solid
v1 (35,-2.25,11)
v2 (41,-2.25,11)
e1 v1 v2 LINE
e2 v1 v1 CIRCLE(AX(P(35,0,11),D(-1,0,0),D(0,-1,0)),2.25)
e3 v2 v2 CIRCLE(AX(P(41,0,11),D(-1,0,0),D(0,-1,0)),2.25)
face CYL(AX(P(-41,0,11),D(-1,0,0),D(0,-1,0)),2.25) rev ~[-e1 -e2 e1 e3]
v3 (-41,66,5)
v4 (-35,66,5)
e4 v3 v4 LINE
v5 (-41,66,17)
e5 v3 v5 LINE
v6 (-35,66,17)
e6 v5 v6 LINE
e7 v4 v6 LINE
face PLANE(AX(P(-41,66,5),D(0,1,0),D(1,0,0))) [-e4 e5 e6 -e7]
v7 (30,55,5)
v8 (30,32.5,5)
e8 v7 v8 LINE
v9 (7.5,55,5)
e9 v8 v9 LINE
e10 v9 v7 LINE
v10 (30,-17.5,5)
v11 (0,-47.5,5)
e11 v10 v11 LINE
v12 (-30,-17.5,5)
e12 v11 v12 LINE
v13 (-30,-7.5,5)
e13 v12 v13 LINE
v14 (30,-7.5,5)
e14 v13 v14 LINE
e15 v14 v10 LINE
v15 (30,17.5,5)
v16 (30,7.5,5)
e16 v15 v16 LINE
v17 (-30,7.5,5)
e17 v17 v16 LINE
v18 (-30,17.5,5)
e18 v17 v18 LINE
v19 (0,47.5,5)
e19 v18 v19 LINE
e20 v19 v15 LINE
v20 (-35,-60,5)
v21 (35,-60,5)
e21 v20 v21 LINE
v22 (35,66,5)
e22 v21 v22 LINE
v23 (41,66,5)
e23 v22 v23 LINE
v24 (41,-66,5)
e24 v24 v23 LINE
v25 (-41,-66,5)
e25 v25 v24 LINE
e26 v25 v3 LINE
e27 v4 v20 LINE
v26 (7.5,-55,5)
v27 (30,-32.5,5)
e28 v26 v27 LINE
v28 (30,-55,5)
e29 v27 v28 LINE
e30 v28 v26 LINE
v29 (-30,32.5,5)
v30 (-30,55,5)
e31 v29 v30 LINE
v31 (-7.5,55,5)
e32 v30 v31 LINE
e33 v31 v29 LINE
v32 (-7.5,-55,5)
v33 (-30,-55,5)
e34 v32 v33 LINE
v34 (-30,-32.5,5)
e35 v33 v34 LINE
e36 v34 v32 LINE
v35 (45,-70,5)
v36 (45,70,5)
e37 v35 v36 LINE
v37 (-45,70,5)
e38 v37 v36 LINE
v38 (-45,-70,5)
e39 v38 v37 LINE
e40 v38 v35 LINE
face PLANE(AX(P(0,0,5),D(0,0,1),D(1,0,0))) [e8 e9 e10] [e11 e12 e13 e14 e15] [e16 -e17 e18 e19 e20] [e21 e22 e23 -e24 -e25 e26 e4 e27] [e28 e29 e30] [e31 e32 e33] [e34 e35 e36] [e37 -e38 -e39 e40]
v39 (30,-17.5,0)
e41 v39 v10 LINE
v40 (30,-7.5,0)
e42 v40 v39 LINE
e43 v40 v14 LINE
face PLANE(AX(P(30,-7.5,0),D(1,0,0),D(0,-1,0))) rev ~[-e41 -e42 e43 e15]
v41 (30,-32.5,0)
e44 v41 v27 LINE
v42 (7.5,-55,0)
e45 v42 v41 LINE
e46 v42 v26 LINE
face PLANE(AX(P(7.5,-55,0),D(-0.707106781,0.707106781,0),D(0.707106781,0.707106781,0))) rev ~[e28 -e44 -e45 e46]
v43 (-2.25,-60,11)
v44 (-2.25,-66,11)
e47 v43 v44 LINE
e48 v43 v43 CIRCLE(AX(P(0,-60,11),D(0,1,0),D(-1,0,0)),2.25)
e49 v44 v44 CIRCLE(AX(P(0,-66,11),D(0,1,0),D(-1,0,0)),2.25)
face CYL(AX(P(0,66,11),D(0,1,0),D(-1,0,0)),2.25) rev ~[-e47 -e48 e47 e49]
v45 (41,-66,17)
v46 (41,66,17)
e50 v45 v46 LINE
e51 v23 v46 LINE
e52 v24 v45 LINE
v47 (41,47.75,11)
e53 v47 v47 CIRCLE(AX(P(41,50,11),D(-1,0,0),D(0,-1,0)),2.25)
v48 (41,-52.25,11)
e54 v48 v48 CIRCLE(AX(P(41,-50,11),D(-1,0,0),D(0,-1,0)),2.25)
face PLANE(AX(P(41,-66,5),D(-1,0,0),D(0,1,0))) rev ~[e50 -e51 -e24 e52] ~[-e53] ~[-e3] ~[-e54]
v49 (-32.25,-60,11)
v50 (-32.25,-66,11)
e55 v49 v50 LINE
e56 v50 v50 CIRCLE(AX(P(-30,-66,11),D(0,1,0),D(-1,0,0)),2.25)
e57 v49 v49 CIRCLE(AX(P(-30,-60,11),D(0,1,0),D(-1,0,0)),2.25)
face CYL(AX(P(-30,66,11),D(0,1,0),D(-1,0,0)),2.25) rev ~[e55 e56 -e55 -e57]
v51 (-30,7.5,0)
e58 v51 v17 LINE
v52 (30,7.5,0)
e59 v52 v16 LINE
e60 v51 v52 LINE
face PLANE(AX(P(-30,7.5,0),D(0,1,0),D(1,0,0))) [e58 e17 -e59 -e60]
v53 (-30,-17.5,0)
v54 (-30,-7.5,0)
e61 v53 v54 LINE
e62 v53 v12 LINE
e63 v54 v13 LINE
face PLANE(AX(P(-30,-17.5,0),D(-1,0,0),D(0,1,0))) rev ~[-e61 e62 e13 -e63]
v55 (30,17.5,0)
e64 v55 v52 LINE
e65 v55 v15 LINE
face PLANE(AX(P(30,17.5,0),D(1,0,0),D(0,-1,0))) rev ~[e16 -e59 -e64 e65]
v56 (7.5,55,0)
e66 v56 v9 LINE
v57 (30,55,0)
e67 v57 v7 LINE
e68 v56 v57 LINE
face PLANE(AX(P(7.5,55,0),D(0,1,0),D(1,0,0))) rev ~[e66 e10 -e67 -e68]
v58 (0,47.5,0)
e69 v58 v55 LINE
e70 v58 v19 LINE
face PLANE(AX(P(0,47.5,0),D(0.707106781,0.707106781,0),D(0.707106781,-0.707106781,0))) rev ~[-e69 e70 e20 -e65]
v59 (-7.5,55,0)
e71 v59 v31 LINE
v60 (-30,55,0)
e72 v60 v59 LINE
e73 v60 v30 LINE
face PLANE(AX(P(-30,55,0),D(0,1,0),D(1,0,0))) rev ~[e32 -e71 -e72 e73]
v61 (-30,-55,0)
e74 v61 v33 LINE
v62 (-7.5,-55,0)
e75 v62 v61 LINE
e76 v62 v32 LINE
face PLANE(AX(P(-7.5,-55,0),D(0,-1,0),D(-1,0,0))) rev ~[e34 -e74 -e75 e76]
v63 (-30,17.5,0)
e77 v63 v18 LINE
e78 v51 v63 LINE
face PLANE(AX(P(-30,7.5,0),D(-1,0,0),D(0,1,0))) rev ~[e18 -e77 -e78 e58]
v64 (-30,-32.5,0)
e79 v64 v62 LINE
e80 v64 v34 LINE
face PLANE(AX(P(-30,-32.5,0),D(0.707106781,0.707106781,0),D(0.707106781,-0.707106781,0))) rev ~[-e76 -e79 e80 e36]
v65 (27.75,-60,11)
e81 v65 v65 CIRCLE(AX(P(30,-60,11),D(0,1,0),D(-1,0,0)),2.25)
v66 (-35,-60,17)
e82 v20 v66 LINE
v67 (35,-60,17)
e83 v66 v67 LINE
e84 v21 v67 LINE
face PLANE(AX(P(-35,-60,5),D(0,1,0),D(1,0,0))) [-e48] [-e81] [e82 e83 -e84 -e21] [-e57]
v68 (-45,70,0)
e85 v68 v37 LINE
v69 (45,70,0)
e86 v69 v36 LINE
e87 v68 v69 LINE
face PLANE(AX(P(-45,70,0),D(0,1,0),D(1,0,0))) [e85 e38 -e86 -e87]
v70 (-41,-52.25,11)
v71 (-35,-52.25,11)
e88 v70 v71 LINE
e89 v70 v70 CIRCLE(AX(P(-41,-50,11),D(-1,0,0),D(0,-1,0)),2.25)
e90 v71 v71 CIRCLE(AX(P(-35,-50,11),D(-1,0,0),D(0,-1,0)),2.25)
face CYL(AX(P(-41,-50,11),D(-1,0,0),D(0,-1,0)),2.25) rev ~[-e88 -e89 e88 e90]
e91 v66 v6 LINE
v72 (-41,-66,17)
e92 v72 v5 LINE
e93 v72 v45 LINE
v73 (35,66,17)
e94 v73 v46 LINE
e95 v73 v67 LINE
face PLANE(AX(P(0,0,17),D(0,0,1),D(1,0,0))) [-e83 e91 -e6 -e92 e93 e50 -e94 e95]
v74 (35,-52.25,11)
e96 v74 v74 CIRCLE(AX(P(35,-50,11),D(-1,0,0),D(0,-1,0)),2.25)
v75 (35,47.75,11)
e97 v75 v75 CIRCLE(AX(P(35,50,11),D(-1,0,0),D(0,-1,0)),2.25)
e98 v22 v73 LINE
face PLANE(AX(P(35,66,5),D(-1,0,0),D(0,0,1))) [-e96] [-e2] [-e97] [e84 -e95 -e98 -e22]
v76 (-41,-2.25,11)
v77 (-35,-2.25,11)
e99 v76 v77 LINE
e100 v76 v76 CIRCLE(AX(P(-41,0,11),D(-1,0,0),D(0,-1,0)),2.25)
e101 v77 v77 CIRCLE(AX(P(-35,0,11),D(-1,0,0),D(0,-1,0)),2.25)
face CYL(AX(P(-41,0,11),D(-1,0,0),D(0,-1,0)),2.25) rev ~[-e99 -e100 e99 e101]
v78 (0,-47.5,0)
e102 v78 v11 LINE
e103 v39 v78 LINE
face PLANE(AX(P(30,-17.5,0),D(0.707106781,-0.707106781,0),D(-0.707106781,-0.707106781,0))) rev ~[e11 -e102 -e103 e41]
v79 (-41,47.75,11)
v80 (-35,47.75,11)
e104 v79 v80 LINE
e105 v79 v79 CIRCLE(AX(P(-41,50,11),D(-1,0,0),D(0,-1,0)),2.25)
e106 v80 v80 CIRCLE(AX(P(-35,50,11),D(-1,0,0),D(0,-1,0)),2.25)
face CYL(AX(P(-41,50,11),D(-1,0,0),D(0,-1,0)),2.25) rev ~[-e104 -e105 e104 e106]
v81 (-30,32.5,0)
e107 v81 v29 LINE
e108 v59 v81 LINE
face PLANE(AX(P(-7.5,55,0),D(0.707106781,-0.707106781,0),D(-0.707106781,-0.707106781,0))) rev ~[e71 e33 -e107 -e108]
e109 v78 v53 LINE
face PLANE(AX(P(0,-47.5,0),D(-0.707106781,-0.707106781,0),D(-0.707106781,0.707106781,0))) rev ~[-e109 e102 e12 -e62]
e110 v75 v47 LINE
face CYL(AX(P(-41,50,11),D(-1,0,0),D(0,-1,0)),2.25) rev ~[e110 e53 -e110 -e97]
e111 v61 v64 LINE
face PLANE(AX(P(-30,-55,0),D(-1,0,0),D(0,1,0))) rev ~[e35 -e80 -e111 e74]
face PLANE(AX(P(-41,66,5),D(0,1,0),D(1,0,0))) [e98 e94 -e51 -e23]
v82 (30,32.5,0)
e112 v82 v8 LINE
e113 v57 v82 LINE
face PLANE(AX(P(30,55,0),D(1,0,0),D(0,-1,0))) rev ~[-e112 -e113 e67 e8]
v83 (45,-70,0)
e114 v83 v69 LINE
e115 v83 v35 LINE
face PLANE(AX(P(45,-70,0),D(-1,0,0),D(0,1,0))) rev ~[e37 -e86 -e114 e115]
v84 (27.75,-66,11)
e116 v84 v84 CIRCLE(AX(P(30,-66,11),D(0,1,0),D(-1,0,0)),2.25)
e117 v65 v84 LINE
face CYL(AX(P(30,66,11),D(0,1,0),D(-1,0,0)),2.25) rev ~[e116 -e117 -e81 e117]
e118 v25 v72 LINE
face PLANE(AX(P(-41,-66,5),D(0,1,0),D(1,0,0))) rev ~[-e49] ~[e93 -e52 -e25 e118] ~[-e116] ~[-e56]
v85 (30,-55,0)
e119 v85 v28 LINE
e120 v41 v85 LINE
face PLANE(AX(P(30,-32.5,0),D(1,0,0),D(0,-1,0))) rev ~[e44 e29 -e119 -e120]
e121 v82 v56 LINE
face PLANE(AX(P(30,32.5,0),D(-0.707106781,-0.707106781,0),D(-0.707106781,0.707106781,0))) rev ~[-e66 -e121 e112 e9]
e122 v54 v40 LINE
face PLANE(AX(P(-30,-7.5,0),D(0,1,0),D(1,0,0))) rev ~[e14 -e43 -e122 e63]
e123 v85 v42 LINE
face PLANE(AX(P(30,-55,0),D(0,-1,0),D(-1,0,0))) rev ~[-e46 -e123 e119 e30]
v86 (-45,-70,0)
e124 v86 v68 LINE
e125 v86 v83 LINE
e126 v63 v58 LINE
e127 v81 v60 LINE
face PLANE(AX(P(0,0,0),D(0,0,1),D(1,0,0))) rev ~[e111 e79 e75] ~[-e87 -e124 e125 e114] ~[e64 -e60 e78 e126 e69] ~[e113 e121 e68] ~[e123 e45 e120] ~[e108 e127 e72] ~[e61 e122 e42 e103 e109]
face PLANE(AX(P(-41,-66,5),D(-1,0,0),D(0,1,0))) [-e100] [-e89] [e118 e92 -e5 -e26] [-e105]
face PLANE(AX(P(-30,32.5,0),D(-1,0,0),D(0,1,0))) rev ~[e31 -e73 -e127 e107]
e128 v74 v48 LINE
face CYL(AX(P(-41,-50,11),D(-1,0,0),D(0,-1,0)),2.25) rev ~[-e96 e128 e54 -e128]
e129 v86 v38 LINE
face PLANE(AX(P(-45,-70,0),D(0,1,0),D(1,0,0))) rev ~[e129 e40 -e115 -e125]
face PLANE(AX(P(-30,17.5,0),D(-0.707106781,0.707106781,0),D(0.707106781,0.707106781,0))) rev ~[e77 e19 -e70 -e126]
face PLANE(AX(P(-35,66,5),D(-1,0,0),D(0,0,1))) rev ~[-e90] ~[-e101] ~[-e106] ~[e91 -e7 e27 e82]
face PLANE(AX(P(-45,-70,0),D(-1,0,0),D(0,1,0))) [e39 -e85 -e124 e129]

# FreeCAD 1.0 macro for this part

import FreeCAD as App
import Part
import Sketcher

V = App.Vector
Q = App.Units.Quantity

doc = App.newDocument("Part")
body = doc.addObject("PartDesign::Body", "Body")

# Sketch on XY plane
sketch1 = doc.addObject("Sketcher::SketchObject", "Sketch")
body.addObject(sketch1)
sketch1.AttachmentSupport = (doc.XY_Plane, [""])
sketch1.MapMode = "FlatFace"
sketch1.addGeometry(Part.LineSegment(V(-45, 70, 0), V(-45, -70, 0)), False)
sketch1.addGeometry(Part.LineSegment(V(-45, -70, 0), V(45, -70, 0)), False)
sketch1.addGeometry(Part.LineSegment(V(45, -70, 0), V(45, 70, 0)), False)
sketch1.addGeometry(Part.LineSegment(V(45, 70, 0), V(-45, 70, 0)), False)
sketch1.addGeometry(Part.LineSegment(V(-30, -55, 0), V(-30, -32.5, 0)), False)
sketch1.addGeometry(Part.LineSegment(V(-30, -32.5, 0), V(-7.5, -55, 0)), False)
sketch1.addGeometry(Part.LineSegment(V(-7.5, -55, 0), V(-30, -55, 0)), False)
sketch1.addGeometry(Part.LineSegment(V(-30, -17.5, 0), V(-30, -7.5, 0)), False)
sketch1.addGeometry(Part.LineSegment(V(-30, -7.5, 0), V(30, -7.5, 0)), False)
sketch1.addGeometry(Part.LineSegment(V(30, -7.5, 0), V(30, -17.5, 0)), False)
sketch1.addGeometry(Part.LineSegment(V(30, -17.5, 0), V(0, -47.5, 0)), False)
sketch1.addGeometry(Part.LineSegment(V(0, -47.5, 0), V(-30, -17.5, 0)), False)
sketch1.addGeometry(Part.LineSegment(V(-30, 7.5, 0), V(-30, 17.5, 0)), False)
sketch1.addGeometry(Part.LineSegment(V(-30, 17.5, 0), V(0, 47.5, 0)), False)
sketch1.addGeometry(Part.LineSegment(V(0, 47.5, 0), V(30, 17.5, 0)), False)
sketch1.addGeometry(Part.LineSegment(V(30, 17.5, 0), V(30, 7.5, 0)), False)
sketch1.addGeometry(Part.LineSegment(V(30, 7.5, 0), V(-30, 7.5, 0)), False)
sketch1.addGeometry(Part.LineSegment(V(30, -32.5, 0), V(30, -55, 0)), False)
sketch1.addGeometry(Part.LineSegment(V(30, -55, 0), V(7.5, -55, 0)), False)
sketch1.addGeometry(Part.LineSegment(V(7.5, -55, 0), V(30, -32.5, 0)), False)
sketch1.addGeometry(Part.LineSegment(V(-30, 32.5, 0), V(-30, 55, 0)), False)
sketch1.addGeometry(Part.LineSegment(V(-30, 55, 0), V(-7.5, 55, 0)), False)
sketch1.addGeometry(Part.LineSegment(V(-7.5, 55, 0), V(-30, 32.5, 0)), False)
sketch1.addGeometry(Part.LineSegment(V(7.5, 55, 0), V(30, 55, 0)), False)
sketch1.addGeometry(Part.LineSegment(V(30, 55, 0), V(30, 32.5, 0)), False)
sketch1.addGeometry(Part.LineSegment(V(30, 32.5, 0), V(7.5, 55, 0)), False)
sketch1.addConstraint(Sketcher.Constraint("Coincident", 0, 2, 1, 1))
sketch1.addConstraint(Sketcher.Constraint("Coincident", 1, 2, 2, 1))
sketch1.addConstraint(Sketcher.Constraint("Coincident", 2, 2, 3, 1))
sketch1.addConstraint(Sketcher.Constraint("Coincident", 3, 2, 0, 1))
sketch1.addConstraint(Sketcher.Constraint("Coincident", 4, 2, 5, 1))
sketch1.addConstraint(Sketcher.Constraint("Coincident", 5, 2, 6, 1))
sketch1.addConstraint(Sketcher.Constraint("Coincident", 6, 2, 4, 1))
sketch1.addConstraint(Sketcher.Constraint("Coincident", 7, 2, 8, 1))
sketch1.addConstraint(Sketcher.Constraint("Coincident", 8, 2, 9, 1))
sketch1.addConstraint(Sketcher.Constraint("Coincident", 9, 2, 10, 1))
sketch1.addConstraint(Sketcher.Constraint("Coincident", 10, 2, 11, 1))
sketch1.addConstraint(Sketcher.Constraint("Coincident", 11, 2, 7, 1))
sketch1.addConstraint(Sketcher.Constraint("Coincident", 12, 2, 13, 1))
sketch1.addConstraint(Sketcher.Constraint("Coincident", 13, 2, 14, 1))
sketch1.addConstraint(Sketcher.Constraint("Coincident", 14, 2, 15, 1))
sketch1.addConstraint(Sketcher.Constraint("Coincident", 15, 2, 16, 1))
sketch1.addConstraint(Sketcher.Constraint("Coincident", 16, 2, 12, 1))
sketch1.addConstraint(Sketcher.Constraint("Coincident", 17, 2, 18, 1))
sketch1.addConstraint(Sketcher.Constraint("Coincident", 18, 2, 19, 1))
sketch1.addConstraint(Sketcher.Constraint("Coincident", 19, 2, 17, 1))
sketch1.addConstraint(Sketcher.Constraint("Coincident", 20, 2, 21, 1))
sketch1.addConstraint(Sketcher.Constraint("Coincident", 21, 2, 22, 1))
sketch1.addConstraint(Sketcher.Constraint("Coincident", 22, 2, 20, 1))
sketch1.addConstraint(Sketcher.Constraint("Coincident", 23, 2, 24, 1))
sketch1.addConstraint(Sketcher.Constraint("Coincident", 24, 2, 25, 1))
sketch1.addConstraint(Sketcher.Constraint("Coincident", 25, 2, 23, 1))
sketch1.addConstraint(Sketcher.Constraint("Vertical", 0))
sketch1.addConstraint(Sketcher.Constraint("Horizontal", 1))
sketch1.addConstraint(Sketcher.Constraint("Vertical", 2))
sketch1.addConstraint(Sketcher.Constraint("Horizontal", 3))
sketch1.addConstraint(Sketcher.Constraint("Vertical", 4))
sketch1.addConstraint(Sketcher.Constraint("Horizontal", 6))
sketch1.addConstraint(Sketcher.Constraint("Vertical", 7))
sketch1.addConstraint(Sketcher.Constraint("Horizontal", 8))
sketch1.addConstraint(Sketcher.Constraint("Vertical", 9))
sketch1.addConstraint(Sketcher.Constraint("Vertical", 12))
sketch1.addConstraint(Sketcher.Constraint("Vertical", 15))
sketch1.addConstraint(Sketcher.Constraint("Horizontal", 16))
sketch1.addConstraint(Sketcher.Constraint("Vertical", 17))
sketch1.addConstraint(Sketcher.Constraint("Horizontal", 18))
sketch1.addConstraint(Sketcher.Constraint("Vertical", 20))
sketch1.addConstraint(Sketcher.Constraint("Horizontal", 21))
sketch1.addConstraint(Sketcher.Constraint("Horizontal", 23))
sketch1.addConstraint(Sketcher.Constraint("Vertical", 24))
sketch1.addConstraint(Sketcher.Constraint("Symmetric", 0, 2, 2, 2, -1, 1))
sketch1.addConstraint(Sketcher.Constraint("Symmetric", 9, 2, 12, 2, -1, 1))
sketch1.addConstraint(Sketcher.Constraint("Symmetric", 10, 2, 13, 2, -1, 1))
sketch1.addConstraint(Sketcher.Constraint("Symmetric", 11, 2, 14, 2, -1, 1))
sketch1.addConstraint(Sketcher.Constraint("Symmetric", 17, 2, 20, 2, -1, 1))
sketch1.addConstraint(Sketcher.Constraint("Symmetric", 6, 2, 23, 2, -1, 1))
sketch1.addConstraint(Sketcher.Constraint("Symmetric", 9, 2, 11, 2, -2))
sketch1.addConstraint(Sketcher.Constraint("Symmetric", 6, 2, 17, 2, -2))
sketch1.addConstraint(Sketcher.Constraint("PointOnObject", 10, 2, -2))
sketch1.addConstraint(Sketcher.Constraint("Perpendicular", 5, 10))
sketch1.addConstraint(Sketcher.Constraint("Perpendicular", 10, 11))
sketch1.addConstraint(Sketcher.Constraint("Perpendicular", 14, 19))
sketch1.addConstraint(Sketcher.Constraint("Parallel", 19, 22))
sketch1.addConstraint(Sketcher.Constraint("Perpendicular", 22, 25))
sketch1.addConstraint(Sketcher.Constraint("Horizontal", 4, 2, 19, 2))
sketch1.addConstraint(Sketcher.Constraint("Horizontal", 22, 2, 24, 2))
sketch1.addConstraint(Sketcher.Constraint("Vertical", 6, 2, 7, 2))
sketch1.addConstraint(Sketcher.Constraint("Vertical", 5, 2, 21, 2))
sketch1.addConstraint(Sketcher.Constraint("Equal", 9, 12))
sketch1.addConstraint(Sketcher.Constraint("DistanceX", 1, 1, 1, 2, Q("90 mm")))
sketch1.addConstraint(Sketcher.Constraint("DistanceX", 8, 1, 8, 2, Q("60 mm")))
sketch1.addConstraint(Sketcher.Constraint("DistanceY", 0, 2, 0, 1, Q("140 mm")))
sketch1.addConstraint(Sketcher.Constraint("DistanceY", 7, 1, 7, 2, Q("10 mm")))
sketch1.addConstraint(Sketcher.Constraint("DistanceX", 6, 2, 6, 1, Q("22.5 mm")))
sketch1.addConstraint(Sketcher.Constraint("DistanceY", 5, 2, -1, 1, Q("55 mm")))
sketch1.addConstraint(Sketcher.Constraint("DistanceY", 4, 2, 7, 2, Q("25 mm")))
pad1 = doc.addObject("PartDesign::Pad", "Pad")
body.addObject(pad1)
pad1.Profile = sketch1
pad1.Length = 5

# Sketch on XY plane
sketch2 = doc.addObject("Sketcher::SketchObject", "Sketch001")
body.addObject(sketch2)
sketch2.AttachmentSupport = (doc.XY_Plane, [""])
sketch2.MapMode = "FlatFace"
sketch2.AttachmentOffset = App.Placement(V(0, 0, 5), App.Rotation())
sketch2.addGeometry(Part.LineSegment(V(-41, 66, 0), V(-41, -66, 0)), False)
sketch2.addGeometry(Part.LineSegment(V(-41, -66, 0), V(41, -66, 0)), False)
sketch2.addGeometry(Part.LineSegment(V(41, -66, 0), V(41, 66, 0)), False)
sketch2.addGeometry(Part.LineSegment(V(41, 66, 0), V(-41, 66, 0)), False)
sketch2.addGeometry(Part.LineSegment(V(35, -60, 0), V(-35, -60, 0)), False)
sketch2.addGeometry(Part.LineSegment(V(-35, -60, 0), V(-35, 60, 0)), False)
sketch2.addGeometry(Part.LineSegment(V(-35, 60, 0), V(35, 60, 0)), False)
sketch2.addGeometry(Part.LineSegment(V(35, 60, 0), V(35, -60, 0)), False)
sketch2.addConstraint(Sketcher.Constraint("Coincident", 0, 2, 1, 1))
sketch2.addConstraint(Sketcher.Constraint("Coincident", 1, 2, 2, 1))
sketch2.addConstraint(Sketcher.Constraint("Coincident", 2, 2, 3, 1))
sketch2.addConstraint(Sketcher.Constraint("Coincident", 3, 2, 0, 1))
sketch2.addConstraint(Sketcher.Constraint("Coincident", 4, 2, 5, 1))
sketch2.addConstraint(Sketcher.Constraint("Coincident", 5, 2, 6, 1))
sketch2.addConstraint(Sketcher.Constraint("Coincident", 6, 2, 7, 1))
sketch2.addConstraint(Sketcher.Constraint("Coincident", 7, 2, 4, 1))
sketch2.addConstraint(Sketcher.Constraint("Vertical", 0))
sketch2.addConstraint(Sketcher.Constraint("Horizontal", 1))
sketch2.addConstraint(Sketcher.Constraint("Vertical", 2))
sketch2.addConstraint(Sketcher.Constraint("Horizontal", 3))
sketch2.addConstraint(Sketcher.Constraint("Horizontal", 4))
sketch2.addConstraint(Sketcher.Constraint("Vertical", 5))
sketch2.addConstraint(Sketcher.Constraint("Horizontal", 6))
sketch2.addConstraint(Sketcher.Constraint("Vertical", 7))
sketch2.addConstraint(Sketcher.Constraint("Symmetric", 0, 2, 2, 2, -1, 1))
sketch2.addConstraint(Sketcher.Constraint("Symmetric", 4, 2, 6, 2, -1, 1))
sketch2.addConstraint(Sketcher.Constraint("DistanceX", 1, 1, 1, 2, Q("82 mm")))
sketch2.addConstraint(Sketcher.Constraint("DistanceX", 4, 2, 4, 1, Q("70 mm")))
sketch2.addConstraint(Sketcher.Constraint("DistanceY", 0, 2, 0, 1, Q("132 mm")))
sketch2.addConstraint(Sketcher.Constraint("DistanceY", 5, 1, 5, 2, Q("120 mm")))
pad2 = doc.addObject("PartDesign::Pad", "Pad001")
body.addObject(pad2)
pad2.Profile = sketch2
pad2.Length = 12

# Sketch on YZ plane
sketch3 = doc.addObject("Sketcher::SketchObject", "Sketch002")
body.addObject(sketch3)
sketch3.AttachmentSupport = (doc.YZ_Plane, [""])
sketch3.MapMode = "FlatFace"
sketch3.AttachmentOffset = App.Placement(V(0, 0, -41), App.Rotation())
sketch3.addGeometry(Part.Circle(V(50, 11, 0), V(0, 0, 1), 2.25), False)
sketch3.addGeometry(Part.Circle(V(0, 11, 0), V(0, 0, 1), 2.25), False)
sketch3.addGeometry(Part.Circle(V(-50, 11, 0), V(0, 0, 1), 2.25), False)
sketch3.addConstraint(Sketcher.Constraint("Equal", 0, 1))
sketch3.addConstraint(Sketcher.Constraint("Equal", 1, 2))
sketch3.addConstraint(Sketcher.Constraint("Symmetric", 0, 3, 2, 3, -2))
sketch3.addConstraint(Sketcher.Constraint("PointOnObject", 1, 3, -2))
sketch3.addConstraint(Sketcher.Constraint("Horizontal", 0, 3, 1, 3))
sketch3.addConstraint(Sketcher.Constraint("Diameter", 0, Q("4.5 mm")))
sketch3.addConstraint(Sketcher.Constraint("DistanceX", -1, 1, 0, 3, Q("50 mm")))
sketch3.addConstraint(Sketcher.Constraint("DistanceY", -1, 1, 0, 3, Q("11 mm")))
pocket1 = doc.addObject("PartDesign::Pocket", "Pocket")
body.addObject(pocket1)
pocket1.Profile = sketch3
pocket1.Type = "ThroughAll"
pocket1.Reversed = True

# Sketch on XZ plane
sketch4 = doc.addObject("Sketcher::SketchObject", "Sketch003")
body.addObject(sketch4)
sketch4.AttachmentSupport = (doc.XZ_Plane, [""])
sketch4.MapMode = "FlatFace"
sketch4.AttachmentOffset = App.Placement(V(0, 0, -66), App.Rotation())
sketch4.addGeometry(Part.Circle(V(30, 11, 0), V(0, 0, 1), 2.25), False)
sketch4.addGeometry(Part.Circle(V(0, 11, 0), V(0, 0, 1), 2.25), False)
sketch4.addGeometry(Part.Circle(V(-30, 11, 0), V(0, 0, 1), 2.25), False)
sketch4.addConstraint(Sketcher.Constraint("Equal", 0, 1))
sketch4.addConstraint(Sketcher.Constraint("Equal", 1, 2))
sketch4.addConstraint(Sketcher.Constraint("Symmetric", 0, 3, 2, 3, -2))
sketch4.addConstraint(Sketcher.Constraint("PointOnObject", 1, 3, -2))
sketch4.addConstraint(Sketcher.Constraint("Horizontal", 0, 3, 1, 3))
sketch4.addConstraint(Sketcher.Constraint("Diameter", 0, Q("4.5 mm")))
sketch4.addConstraint(Sketcher.Constraint("DistanceX", -1, 1, 0, 3, Q("30 mm")))
sketch4.addConstraint(Sketcher.Constraint("DistanceY", -1, 1, 0, 3, Q("11 mm")))
pocket2 = doc.addObject("PartDesign::Pocket", "Pocket001")
body.addObject(pocket2)
pocket2.Profile = sketch4
pocket2.Type = "ThroughAll"
pocket2.Reversed = True

# Sketch on XZ plane
sketch5 = doc.addObject("Sketcher::SketchObject", "Sketch004")
body.addObject(sketch5)
sketch5.AttachmentSupport = (doc.XZ_Plane, [""])
sketch5.MapMode = "FlatFace"
sketch5.AttachmentOffset = App.Placement(V(0, 0, -66), App.Rotation())
sketch5.addGeometry(Part.LineSegment(V(35, 17, 0), V(35, 5, 0)), False)
sketch5.addGeometry(Part.LineSegment(V(35, 5, 0), V(-35, 5, 0)), False)
sketch5.addGeometry(Part.LineSegment(V(-35, 5, 0), V(-35, 17, 0)), False)
sketch5.addGeometry(Part.LineSegment(V(-35, 17, 0), V(35, 17, 0)), False)
sketch5.addGeometry(Part.Circle(V(30, 11, 0), V(0, 0, 1), 2.25), False)
sketch5.addGeometry(Part.Circle(V(0, 11, 0), V(0, 0, 1), 2.25), False)
sketch5.addGeometry(Part.Circle(V(-30, 11, 0), V(0, 0, 1), 2.25), False)
sketch5.addConstraint(Sketcher.Constraint("Coincident", 0, 2, 1, 1))
sketch5.addConstraint(Sketcher.Constraint("Coincident", 1, 2, 2, 1))
sketch5.addConstraint(Sketcher.Constraint("Coincident", 2, 2, 3, 1))
sketch5.addConstraint(Sketcher.Constraint("Coincident", 3, 2, 0, 1))
sketch5.addConstraint(Sketcher.Constraint("Vertical", 0))
sketch5.addConstraint(Sketcher.Constraint("Horizontal", 1))
sketch5.addConstraint(Sketcher.Constraint("Vertical", 2))
sketch5.addConstraint(Sketcher.Constraint("Horizontal", 3))
sketch5.addConstraint(Sketcher.Constraint("Equal", 4, 5))
sketch5.addConstraint(Sketcher.Constraint("Equal", 5, 6))
sketch5.addConstraint(Sketcher.Constraint("Symmetric", 4, 3, 6, 3, -2))
sketch5.addConstraint(Sketcher.Constraint("PointOnObject", 5, 3, -2))
sketch5.addConstraint(Sketcher.Constraint("Horizontal", 4, 3, 5, 3))
sketch5.addConstraint(Sketcher.Constraint("Diameter", 4, Q("4.5 mm")))
sketch5.addConstraint(Sketcher.Constraint("DistanceX", 1, 2, 1, 1, Q("70 mm")))
sketch5.addConstraint(Sketcher.Constraint("DistanceY", 0, 2, 0, 1, Q("12 mm")))
sketch5.addConstraint(Sketcher.Constraint("DistanceX", -1, 1, 4, 3, Q("30 mm")))
sketch5.addConstraint(Sketcher.Constraint("DistanceY", -1, 1, 4, 3, Q("11 mm")))
sketch5.addConstraint(Sketcher.Constraint("DistanceX", -1, 1, 0, 2, Q("35 mm")))
sketch5.addConstraint(Sketcher.Constraint("DistanceY", -1, 1, 0, 2, Q("5 mm")))
pocket3 = doc.addObject("PartDesign::Pocket", "Pocket002")
body.addObject(pocket3)
pocket3.Profile = sketch5
pocket3.Length = 6
pocket3.Reversed = True

doc.recompute()
